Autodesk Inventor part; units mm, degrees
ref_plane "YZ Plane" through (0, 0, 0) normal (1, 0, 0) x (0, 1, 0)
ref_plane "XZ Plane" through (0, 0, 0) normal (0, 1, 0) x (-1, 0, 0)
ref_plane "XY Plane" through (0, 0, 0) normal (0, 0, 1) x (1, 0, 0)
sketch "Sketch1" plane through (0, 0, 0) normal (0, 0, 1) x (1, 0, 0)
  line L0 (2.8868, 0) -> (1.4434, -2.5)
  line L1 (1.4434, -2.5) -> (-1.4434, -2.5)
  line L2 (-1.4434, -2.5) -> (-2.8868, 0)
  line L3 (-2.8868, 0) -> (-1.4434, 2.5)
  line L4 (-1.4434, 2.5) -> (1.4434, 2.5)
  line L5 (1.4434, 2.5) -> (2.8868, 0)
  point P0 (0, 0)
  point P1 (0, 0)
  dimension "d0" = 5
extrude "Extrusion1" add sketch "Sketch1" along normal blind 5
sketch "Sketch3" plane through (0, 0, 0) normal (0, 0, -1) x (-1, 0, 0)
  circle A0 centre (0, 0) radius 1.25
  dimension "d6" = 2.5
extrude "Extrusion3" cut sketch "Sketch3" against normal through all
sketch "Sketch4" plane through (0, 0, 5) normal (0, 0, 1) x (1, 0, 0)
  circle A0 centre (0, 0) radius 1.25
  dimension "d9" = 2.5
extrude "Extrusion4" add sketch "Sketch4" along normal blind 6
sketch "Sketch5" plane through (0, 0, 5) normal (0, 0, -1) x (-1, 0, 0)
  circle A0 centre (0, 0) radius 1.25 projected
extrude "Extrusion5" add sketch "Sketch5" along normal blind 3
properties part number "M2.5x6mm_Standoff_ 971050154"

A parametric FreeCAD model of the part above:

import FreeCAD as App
import Part
import Sketcher
Q = App.Units.Quantity


def add_polygon(sketch, points):
    """Adds a closed chain of lines whose ends are joined by coincident constraints."""
    first, n = sketch.GeometryCount, len(points)
    for a, b in zip(points, points[1:] + points[:1]):
        sketch.addGeometry(Part.LineSegment(App.Vector(*a, 0), App.Vector(*b, 0)), False)
    for i in range(n):
        sketch.addConstraint(Sketcher.Constraint("Coincident", first + i, 2, first + (i + 1) % n, 1))

doc = App.newDocument("Part")
body = doc.addObject("PartDesign::Body", "Body")
body.AllowCompound = True

sketch1 = body.newObject("Sketcher::SketchObject", "Sketch")
sketch1.AttachmentSupport = (doc.getObject("XY_Plane"), [""])
sketch1.MapMode = "FlatFace"
add_polygon(sketch1, [(1.4, -2.5), (2.9, 0), (1.4, 2.5), (-1.4, 2.5), (-2.9, 0), (-1.4, -2.5)])
sketch1.addConstraint([
    Sketcher.Constraint("Horizontal", 2),
    Sketcher.Constraint("Horizontal", 5),
    Sketcher.Constraint("Symmetric", 0, 2, 3, 2, -1, 1),
    Sketcher.Constraint("Symmetric", 1, 2, 4, 2, -1, 1),
    Sketcher.Constraint("PointOnObject", 0, 2, -1),
    Sketcher.Constraint("Parallel", 0, 3),
    Sketcher.Constraint("Vertical", 2, 2, 4, 2),
    Sketcher.Constraint("DistanceY", 4, 2, 2, 2, Q("5 mm")),
    Sketcher.Constraint("Angle", 0, Q("59.9996 deg")),
    Sketcher.Constraint("DistanceX", 2, 2, 2, 1, Q("2.8868 mm")),
])
pad1 = body.newObject("PartDesign::Pad", "Pad")
pad1.Profile = sketch1
pad1.Length = 5

sketch2 = body.newObject("Sketcher::SketchObject", "Sketch001")
sketch2.AttachmentSupport = (doc.getObject("XY_Plane"), [""])
sketch2.MapMode = "FlatFace"
sketch2.addGeometry(Part.Circle(App.Vector(0, 0, 0), App.Vector(0, 0, 1), 1.2), False)
sketch2.addConstraint([
    Sketcher.Constraint("Coincident", 0, 3, -1, 1),
    Sketcher.Constraint("Diameter", 0, Q("2.5 mm")),
])
pocket1 = body.newObject("PartDesign::Pocket", "Pocket")
pocket1.Profile = sketch2
pocket1.Type = "ThroughAll"
pocket1.Reversed = True

sketch3 = body.newObject("Sketcher::SketchObject", "Sketch002")
sketch3.AttachmentSupport = (doc.getObject("XY_Plane"), [""])
sketch3.MapMode = "FlatFace"
sketch3.AttachmentOffset = App.Placement(App.Vector(0, 0, 5), App.Rotation())
sketch3.addGeometry(Part.Circle(App.Vector(0, 0, 0), App.Vector(0, 0, 1), 1.2), False)
sketch3.addConstraint([
    Sketcher.Constraint("Coincident", 0, 3, -1, 1),
    Sketcher.Constraint("Diameter", 0, Q("2.5 mm")),
])
pad2 = body.newObject("PartDesign::Pad", "Pad001")
pad2.Profile = sketch3
pad2.Length = 6

sketch4 = body.newObject("Sketcher::SketchObject", "Sketch003")
sketch4.AttachmentSupport = (doc.getObject("XY_Plane"), [""])
sketch4.MapMode = "FlatFace"
sketch4.AttachmentOffset = App.Placement(App.Vector(0, 0, 5), App.Rotation())
sketch4.addGeometry(Part.Circle(App.Vector(0, 0, 0), App.Vector(0, 0, 1), 1.2), False)
sketch4.addConstraint([
    Sketcher.Constraint("Coincident", 0, 3, -1, 1),
    Sketcher.Constraint("Diameter", 0, Q("2.5 mm")),
])
pad3 = body.newObject("PartDesign::Pad", "Pad002")
pad3.Profile = sketch4
pad3.Length = 3
pad3.Reversed = True

doc.recompute()
